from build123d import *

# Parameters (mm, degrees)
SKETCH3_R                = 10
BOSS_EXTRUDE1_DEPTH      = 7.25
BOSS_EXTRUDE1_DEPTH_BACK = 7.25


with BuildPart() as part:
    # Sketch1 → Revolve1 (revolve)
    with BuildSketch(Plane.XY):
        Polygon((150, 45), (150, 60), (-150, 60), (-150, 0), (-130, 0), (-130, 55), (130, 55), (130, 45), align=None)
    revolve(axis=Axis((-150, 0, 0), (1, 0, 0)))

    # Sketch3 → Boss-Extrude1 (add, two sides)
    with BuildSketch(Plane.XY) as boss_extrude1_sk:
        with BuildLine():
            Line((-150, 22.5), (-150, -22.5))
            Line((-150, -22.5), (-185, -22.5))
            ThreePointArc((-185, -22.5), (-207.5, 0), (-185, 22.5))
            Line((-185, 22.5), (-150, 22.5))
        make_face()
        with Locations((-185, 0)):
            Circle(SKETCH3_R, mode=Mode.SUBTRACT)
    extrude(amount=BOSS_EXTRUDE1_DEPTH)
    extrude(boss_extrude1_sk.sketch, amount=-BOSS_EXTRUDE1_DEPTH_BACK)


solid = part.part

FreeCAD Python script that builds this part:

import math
import FreeCAD as App
import Part
import Sketcher

doc = App.newDocument("Part")
body = doc.addObject("PartDesign::Body", "Body")

# Sketch on XY plane
sketch1 = doc.addObject("Sketcher::SketchObject", "Sketch")
body.addObject(sketch1)
sketch1.AttachmentSupport = (doc.XY_Plane, [""])
sketch1.MapMode = "FlatFace"
sketch1.addGeometry([
    Part.LineSegment(App.Vector(150, 45, 0), App.Vector(150, 60, 0)),  # 0
    Part.LineSegment(App.Vector(150, 60, 0), App.Vector(-150, 60, 0)),  # 1
    Part.LineSegment(App.Vector(-150, 60, 0), App.Vector(-150, 0, 0)),  # 2
    Part.LineSegment(App.Vector(-150, 0, 0), App.Vector(-130, 0, 0)),  # 3
    Part.LineSegment(App.Vector(-130, 0, 0), App.Vector(-130, 55, 0)),  # 4
    Part.LineSegment(App.Vector(-130, 55, 0), App.Vector(130, 55, 0)),  # 5
    Part.LineSegment(App.Vector(130, 55, 0), App.Vector(130, 45, 0)),  # 6
    Part.LineSegment(App.Vector(130, 45, 0), App.Vector(150, 45, 0)),  # 7
], False)
sketch1.addConstraint([
    Sketcher.Constraint("Coincident", 0, 2, 1, 1),
    Sketcher.Constraint("Coincident", 1, 2, 2, 1),
    Sketcher.Constraint("Coincident", 2, 2, 3, 1),
    Sketcher.Constraint("Coincident", 3, 2, 4, 1),
    Sketcher.Constraint("Coincident", 4, 2, 5, 1),
    Sketcher.Constraint("Coincident", 5, 2, 6, 1),
    Sketcher.Constraint("Coincident", 6, 2, 7, 1),
    Sketcher.Constraint("Coincident", 7, 2, 0, 1),
    Sketcher.Constraint("Vertical", 0),
    Sketcher.Constraint("Horizontal", 1),
    Sketcher.Constraint("Vertical", 2),
    Sketcher.Constraint("Horizontal", 3),
    Sketcher.Constraint("Vertical", 4),
    Sketcher.Constraint("Horizontal", 5),
    Sketcher.Constraint("Vertical", 6),
    Sketcher.Constraint("Horizontal", 7),
    Sketcher.Constraint("PointOnObject", 2, 2, -1),
    Sketcher.Constraint("Equal", 3, 7),
    Sketcher.Constraint("DistanceX", 1, 2, 1, 1, 300.0),
    Sketcher.Constraint("DistanceX", 3, 1, 3, 2, 20.0),
    Sketcher.Constraint("DistanceY", 0, 1, 0, 2, 15.0),
    Sketcher.Constraint("DistanceY", 2, 2, 2, 1, 60.0),
    Sketcher.Constraint("DistanceY", 4, 1, 4, 2, 55.0),
    Sketcher.Constraint("DistanceX", -1, 1, 0, 2, 150.0),
])
revolution = doc.addObject("PartDesign::Revolution", "Revolution")
body.addObject(revolution)
revolution.Profile = sketch1
revolution.ReferenceAxis = (sketch1, ["H_Axis"])
revolution.Angle = 360

# Sketch on XY plane
sketch2 = doc.addObject("Sketcher::SketchObject", "Sketch001")
body.addObject(sketch2)
sketch2.AttachmentSupport = (doc.XY_Plane, [""])
sketch2.MapMode = "FlatFace"
sketch2.addGeometry([
    Part.LineSegment(App.Vector(-150, -22, 0), App.Vector(-150, 22, 0)),  # 0
    Part.LineSegment(App.Vector(-150, 22, 0), App.Vector(-185, 22, 0)),  # 1
    Part.ArcOfCircle(Part.Circle(App.Vector(-185, 0, 0), App.Vector(0, 0, 1), 22), math.radians(90), math.radians(270)),  # 2
    Part.LineSegment(App.Vector(-185, -22, 0), App.Vector(-150, -22, 0)),  # 3
    Part.Circle(App.Vector(-185, 0, 0), App.Vector(0, 0, 1), 10),  # 4
], False)
sketch2.addConstraint([
    Sketcher.Constraint("Coincident", 0, 2, 1, 1),
    Sketcher.Constraint("Tangent", 1, 2, 2, 1),
    Sketcher.Constraint("Tangent", 2, 2, 3, 1),
    Sketcher.Constraint("Coincident", 3, 2, 0, 1),
    Sketcher.Constraint("Vertical", 0),
    Sketcher.Constraint("Horizontal", 1),
    Sketcher.Constraint("Horizontal", 3),
    Sketcher.Constraint("Coincident", 4, 3, 2, 3),
    Sketcher.Constraint("PointOnObject", 2, 3, -1),
    Sketcher.Constraint("Diameter", 4, 20.0),
    Sketcher.Constraint("Radius", 2, 22.5),
    Sketcher.Constraint("DistanceX", 1, 2, 1, 1, 35.0),
    Sketcher.Constraint("DistanceX", 2, 3, -1, 1, 185.0),
])
pad1 = doc.addObject("PartDesign::Pad", "Pad")
body.addObject(pad1)
pad1.Profile = sketch2
pad1.Type = "TwoLengths"
pad1.Length = 7.25
pad1.Length2 = 7.25

doc.recompute()
